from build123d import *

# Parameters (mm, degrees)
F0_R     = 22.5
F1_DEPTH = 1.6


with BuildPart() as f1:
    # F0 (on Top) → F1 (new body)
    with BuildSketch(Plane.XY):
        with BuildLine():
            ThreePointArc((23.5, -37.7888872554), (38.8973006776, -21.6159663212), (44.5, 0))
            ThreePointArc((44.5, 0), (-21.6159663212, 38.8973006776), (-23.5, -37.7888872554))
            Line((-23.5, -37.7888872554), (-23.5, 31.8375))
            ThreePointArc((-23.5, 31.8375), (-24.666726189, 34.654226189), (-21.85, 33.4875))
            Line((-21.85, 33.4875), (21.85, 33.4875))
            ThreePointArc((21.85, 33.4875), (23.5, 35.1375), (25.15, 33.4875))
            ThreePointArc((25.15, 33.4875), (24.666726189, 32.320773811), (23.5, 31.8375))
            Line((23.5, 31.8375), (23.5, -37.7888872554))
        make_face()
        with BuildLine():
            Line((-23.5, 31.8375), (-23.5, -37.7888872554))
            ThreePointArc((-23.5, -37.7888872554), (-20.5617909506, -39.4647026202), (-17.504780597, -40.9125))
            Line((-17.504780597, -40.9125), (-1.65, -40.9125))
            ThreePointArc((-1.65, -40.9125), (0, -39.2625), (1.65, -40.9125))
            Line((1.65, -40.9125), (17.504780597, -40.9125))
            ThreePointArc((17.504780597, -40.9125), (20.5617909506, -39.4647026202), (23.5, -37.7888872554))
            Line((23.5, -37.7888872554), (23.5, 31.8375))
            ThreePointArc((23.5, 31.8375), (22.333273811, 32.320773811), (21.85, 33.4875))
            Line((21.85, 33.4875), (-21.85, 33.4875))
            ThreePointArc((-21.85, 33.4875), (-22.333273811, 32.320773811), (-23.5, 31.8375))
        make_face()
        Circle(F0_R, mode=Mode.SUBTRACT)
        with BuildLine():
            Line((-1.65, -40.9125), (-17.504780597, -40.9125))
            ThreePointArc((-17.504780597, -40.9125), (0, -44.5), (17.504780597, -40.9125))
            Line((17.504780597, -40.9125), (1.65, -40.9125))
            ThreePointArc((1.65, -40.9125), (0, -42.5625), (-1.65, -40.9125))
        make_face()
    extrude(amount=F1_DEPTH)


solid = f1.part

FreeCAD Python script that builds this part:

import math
import FreeCAD as App
import Part
import Sketcher

V = App.Vector
Q = App.Units.Quantity

doc = App.newDocument("Part")
body = doc.addObject("PartDesign::Body", "Body")

# Sketch on XY plane
sketch1 = doc.addObject("Sketcher::SketchObject", "Sketch")
body.addObject(sketch1)
sketch1.AttachmentSupport = (doc.XY_Plane, [""])
sketch1.MapMode = "FlatFace"
sketch1.addGeometry([
    Part.ArcOfCircle(Part.Circle(V(0, 0, 0), V(0, 0, 1), 44.5), math.radians(-58), math.radians(0)),  # 0
    Part.ArcOfCircle(Part.Circle(V(0, 0, 0), V(0, 0, 1), 44.5), math.radians(0), math.radians(238)),  # 1
    Part.ArcOfCircle(Part.Circle(V(0, 0, 0), V(0, 0, 1), 44.5), math.radians(-121.88), math.radians(-113.16)),  # 2
    Part.ArcOfCircle(Part.Circle(V(0, 0, 0), V(0, 0, 1), 44.5), math.radians(-113), math.radians(-67)),  # 3
    Part.ArcOfCircle(Part.Circle(V(0, 0, 0), V(0, 0, 1), 44.5), math.radians(-66.84), math.radians(-58.12)),  # 4
    Part.Circle(V(0, -40.9, 0), V(0, 0, 1), 1.6),  # 5
    Part.Circle(V(0, 0, 0), V(0, 0, 1), 22.5),  # 6
    Part.ArcOfCircle(Part.Circle(V(-23.5, 33.5, 0), V(0, 0, 1), 1.6), math.radians(0), math.radians(270)),  # 7
    Part.ArcOfCircle(Part.Circle(V(-23.5, 33.5, 0), V(0, 0, 1), 1.6), math.radians(-90), math.radians(0)),  # 8
    Part.ArcOfCircle(Part.Circle(V(23.5, 33.5, 0), V(0, 0, 1), 1.6), math.radians(0), math.radians(180)),  # 9
    Part.ArcOfCircle(Part.Circle(V(23.5, 33.5, 0), V(0, 0, 1), 1.6), math.radians(-90), math.radians(0)),  # 10
    Part.ArcOfCircle(Part.Circle(V(23.5, 33.5, 0), V(0, 0, 1), 1.6), math.radians(180), math.radians(270)),  # 11
], False)
sketch1.addConstraint([
    Sketcher.Constraint("Tangent", 0, 2, 1, 1),
    Sketcher.Constraint("Tangent", 1, 2, 2, 1),
    Sketcher.Constraint("Tangent", 2, 2, 3, 1),
    Sketcher.Constraint("Tangent", 3, 2, 4, 1),
    Sketcher.Constraint("Tangent", 4, 2, 0, 1),
    Sketcher.Constraint("Tangent", 7, 1, 8, 2),
    Sketcher.Constraint("Coincident", 8, 1, 7, 2),
    Sketcher.Constraint("Tangent", 9, 1, 10, 2),
    Sketcher.Constraint("Tangent", 10, 1, 11, 2),
    Sketcher.Constraint("Tangent", 11, 1, 9, 2),
    Sketcher.Constraint("Coincident", 0, 3, -1, 1),
    Sketcher.Constraint("Coincident", 2, 3, -1, 1),
    Sketcher.Constraint("Coincident", 6, 3, -1, 1),
    Sketcher.Constraint("Equal", 5, 7),
    Sketcher.Constraint("Equal", 8, 9),
    Sketcher.Constraint("Symmetric", 7, 3, 9, 3, -2),
    Sketcher.Constraint("PointOnObject", 5, 3, -2),
    Sketcher.Constraint("PointOnObject", 0, 2, -1),
    Sketcher.Constraint("Horizontal", 5, 3, 2, 2),
    Sketcher.Constraint("Horizontal", 2, 2, 3, 2),
    Sketcher.Constraint("Horizontal", 1, 2, 4, 2),
    Sketcher.Constraint("Horizontal", 11, 3, 7, 1),
    Sketcher.Constraint("Horizontal", 7, 1, 9, 1),
    Sketcher.Constraint("Horizontal", 9, 1, 11, 1),
    Sketcher.Constraint("Vertical", 8, 3, 1, 2),
    Sketcher.Constraint("Vertical", 1, 2, 8, 1),
    Sketcher.Constraint("Vertical", 4, 2, 10, 1),
    Sketcher.Constraint("Diameter", 6, Q("45 mm")),
    Sketcher.Constraint("Diameter", 5, Q("3.3 mm")),
    Sketcher.Constraint("Radius", 0, Q("44.5 mm")),
    Sketcher.Constraint("DistanceX", 9, 3, 0, 2, Q("21 mm")),
    Sketcher.Constraint("DistanceY", 5, 3, -1, 1, Q("40.9125 mm")),
    Sketcher.Constraint("DistanceY", -1, 1, 7, 3, Q("33.4875 mm")),
])
pad1 = doc.addObject("PartDesign::Pad", "Pad")
body.addObject(pad1)
pad1.Profile = sketch1
pad1.Length = 1.6

doc.recompute()
